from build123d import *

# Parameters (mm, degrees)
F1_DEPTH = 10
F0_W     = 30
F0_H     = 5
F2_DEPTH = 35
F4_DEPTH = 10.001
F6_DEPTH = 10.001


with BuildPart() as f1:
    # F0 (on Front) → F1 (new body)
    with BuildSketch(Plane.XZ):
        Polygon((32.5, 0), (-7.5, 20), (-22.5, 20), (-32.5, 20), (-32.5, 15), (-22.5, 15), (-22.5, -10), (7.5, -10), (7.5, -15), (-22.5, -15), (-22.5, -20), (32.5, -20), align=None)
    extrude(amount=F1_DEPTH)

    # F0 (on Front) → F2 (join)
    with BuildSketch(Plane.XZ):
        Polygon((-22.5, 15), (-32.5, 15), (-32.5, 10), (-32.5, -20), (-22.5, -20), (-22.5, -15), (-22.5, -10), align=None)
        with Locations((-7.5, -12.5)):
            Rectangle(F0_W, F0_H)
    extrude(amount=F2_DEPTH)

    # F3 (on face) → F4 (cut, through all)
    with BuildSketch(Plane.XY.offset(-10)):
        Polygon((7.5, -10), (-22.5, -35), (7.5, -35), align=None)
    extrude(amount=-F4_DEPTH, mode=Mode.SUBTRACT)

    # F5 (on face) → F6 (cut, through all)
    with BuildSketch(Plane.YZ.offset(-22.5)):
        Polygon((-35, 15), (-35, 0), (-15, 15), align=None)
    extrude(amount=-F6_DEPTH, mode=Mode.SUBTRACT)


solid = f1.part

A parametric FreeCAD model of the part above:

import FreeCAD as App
import Part
import Sketcher
from FreeCAD import Vector


def add_polygon(sketch, points):
    """Adds a closed chain of lines whose ends are joined by coincident constraints."""
    first, n = sketch.GeometryCount, len(points)
    for a, b in zip(points, points[1:] + points[:1]):
        sketch.addGeometry(Part.LineSegment(App.Vector(*a, 0), App.Vector(*b, 0)), False)
    for i in range(n):
        sketch.addConstraint(Sketcher.Constraint("Coincident", first + i, 2, first + (i + 1) % n, 1))

doc = App.newDocument("Part")
body = doc.addObject("PartDesign::Body", "Body")

# Sketch on XZ plane
sketch1 = body.newObject("Sketcher::SketchObject", "Sketch")
sketch1.AttachmentSupport = (doc.getObject("XZ_Plane"), [""])
sketch1.MapMode = "FlatFace"
add_polygon(sketch1, [(32, 0), (-8, 20), (-32, 20), (-32, 15), (-22, 15), (-22, -10), (8, -10), (8, -15), (-22, -15), (-22, -20), (32, -20)])  # lines 0-10
sketch1.addConstraint([
    Sketcher.Constraint("Horizontal", 1),
    Sketcher.Constraint("Vertical", 2),
    Sketcher.Constraint("Horizontal", 3),
    Sketcher.Constraint("Vertical", 4),
    Sketcher.Constraint("Horizontal", 5),
    Sketcher.Constraint("Vertical", 6),
    Sketcher.Constraint("Horizontal", 7),
    Sketcher.Constraint("Vertical", 8),
    Sketcher.Constraint("Horizontal", 9),
    Sketcher.Constraint("Vertical", 10),
    Sketcher.Constraint("Symmetric", 1, 2, 9, 2, -1, 1),
    Sketcher.Constraint("Symmetric", 3, 2, 7, 2, -1),
    Sketcher.Constraint("PointOnObject", 10, 2, -1),
    Sketcher.Constraint("Equal", 1, 4),
    Sketcher.Constraint("Equal", 2, 6),
    Sketcher.Constraint("DistanceX", 1, 2, 1, 1, 25.0),
    Sketcher.Constraint("DistanceX", 3, 1, 3, 2, 10.0),
    Sketcher.Constraint("DistanceX", 5, 1, 5, 2, 30.0),
    Sketcher.Constraint("DistanceX", 9, 1, 9, 2, 55.0),
    Sketcher.Constraint("DistanceY", 2, 2, 2, 1, 5.0),
])
pad1 = body.newObject("PartDesign::Pad", "Pad")
pad1.Profile = sketch1
pad1.Length = 10

# Sketch on XZ plane
sketch2 = body.newObject("Sketcher::SketchObject", "Sketch001")
sketch2.AttachmentSupport = (doc.getObject("XZ_Plane"), [""])
sketch2.MapMode = "FlatFace"
add_polygon(sketch2, [(-22, 15), (-32, 15), (-32, -20), (-22, -20), (-22, -15), (8, -15), (8, -10), (-22, -10)])  # lines 0-7
sketch2.addConstraint([
    Sketcher.Constraint("Horizontal", 0),
    Sketcher.Constraint("Vertical", 1),
    Sketcher.Constraint("Horizontal", 2),
    Sketcher.Constraint("Vertical", 3),
    Sketcher.Constraint("Horizontal", 4),
    Sketcher.Constraint("Vertical", 5),
    Sketcher.Constraint("Horizontal", 6),
    Sketcher.Constraint("Vertical", 7),
    Sketcher.Constraint("Symmetric", 3, 2, 7, 2, -1),
    Sketcher.Constraint("Equal", 3, 5),
    Sketcher.Constraint("DistanceX", 0, 2, 0, 1, 10.0),
    Sketcher.Constraint("DistanceX", 4, 1, 4, 2, 30.0),
    Sketcher.Constraint("DistanceY", 1, 2, 1, 1, 35.0),
    Sketcher.Constraint("DistanceY", 3, 1, 3, 2, 5.0),
    Sketcher.Constraint("DistanceX", 0, 2, -1, 1, 32.5),
])
pad2 = body.newObject("PartDesign::Pad", "Pad001")
pad2.Profile = sketch2
pad2.Length = 35

# Sketch on XY plane
sketch3 = body.newObject("Sketcher::SketchObject", "Sketch002")
sketch3.AttachmentSupport = (doc.getObject("XY_Plane"), [""])
sketch3.MapMode = "FlatFace"
sketch3.AttachmentOffset = App.Placement(Vector(0, 0, -10), App.Rotation())
add_polygon(sketch3, [(8, -10), (-22, -35), (8, -35)])  # lines 0-2
sketch3.addConstraint([
    Sketcher.Constraint("Horizontal", 1),
    Sketcher.Constraint("Vertical", 2),
    Sketcher.Constraint("DistanceX", 1, 1, 1, 2, 30.0),
    Sketcher.Constraint("DistanceY", 2, 1, 2, 2, 25.0),
    Sketcher.Constraint("DistanceY", 0, 2, -1, 1, 35.0),
    Sketcher.Constraint("DistanceX", 0, 2, -1, 1, 22.5),
])
pocket1 = body.newObject("PartDesign::Pocket", "Pocket")
pocket1.Profile = sketch3
pocket1.Type = "ThroughAll"

# Sketch on YZ plane
sketch4 = body.newObject("Sketcher::SketchObject", "Sketch003")
sketch4.AttachmentSupport = (doc.getObject("YZ_Plane"), [""])
sketch4.MapMode = "FlatFace"
sketch4.AttachmentOffset = App.Placement(Vector(0, 0, -22.5), App.Rotation())
add_polygon(sketch4, [(-35, 15), (-35, 0), (-15, 15)])  # lines 0-2
sketch4.addConstraint([
    Sketcher.Constraint("Vertical", 0),
    Sketcher.Constraint("Horizontal", 2),
    Sketcher.Constraint("PointOnObject", 0, 2, -1),
    Sketcher.Constraint("DistanceX", 2, 2, 2, 1, 20.0),
    Sketcher.Constraint("DistanceY", 0, 2, 0, 1, 15.0),
    Sketcher.Constraint("DistanceX", 0, 2, -1, 1, 35.0),
])
pocket2 = body.newObject("PartDesign::Pocket", "Pocket001")
pocket2.Profile = sketch4
pocket2.Type = "ThroughAll"

doc.recompute()
